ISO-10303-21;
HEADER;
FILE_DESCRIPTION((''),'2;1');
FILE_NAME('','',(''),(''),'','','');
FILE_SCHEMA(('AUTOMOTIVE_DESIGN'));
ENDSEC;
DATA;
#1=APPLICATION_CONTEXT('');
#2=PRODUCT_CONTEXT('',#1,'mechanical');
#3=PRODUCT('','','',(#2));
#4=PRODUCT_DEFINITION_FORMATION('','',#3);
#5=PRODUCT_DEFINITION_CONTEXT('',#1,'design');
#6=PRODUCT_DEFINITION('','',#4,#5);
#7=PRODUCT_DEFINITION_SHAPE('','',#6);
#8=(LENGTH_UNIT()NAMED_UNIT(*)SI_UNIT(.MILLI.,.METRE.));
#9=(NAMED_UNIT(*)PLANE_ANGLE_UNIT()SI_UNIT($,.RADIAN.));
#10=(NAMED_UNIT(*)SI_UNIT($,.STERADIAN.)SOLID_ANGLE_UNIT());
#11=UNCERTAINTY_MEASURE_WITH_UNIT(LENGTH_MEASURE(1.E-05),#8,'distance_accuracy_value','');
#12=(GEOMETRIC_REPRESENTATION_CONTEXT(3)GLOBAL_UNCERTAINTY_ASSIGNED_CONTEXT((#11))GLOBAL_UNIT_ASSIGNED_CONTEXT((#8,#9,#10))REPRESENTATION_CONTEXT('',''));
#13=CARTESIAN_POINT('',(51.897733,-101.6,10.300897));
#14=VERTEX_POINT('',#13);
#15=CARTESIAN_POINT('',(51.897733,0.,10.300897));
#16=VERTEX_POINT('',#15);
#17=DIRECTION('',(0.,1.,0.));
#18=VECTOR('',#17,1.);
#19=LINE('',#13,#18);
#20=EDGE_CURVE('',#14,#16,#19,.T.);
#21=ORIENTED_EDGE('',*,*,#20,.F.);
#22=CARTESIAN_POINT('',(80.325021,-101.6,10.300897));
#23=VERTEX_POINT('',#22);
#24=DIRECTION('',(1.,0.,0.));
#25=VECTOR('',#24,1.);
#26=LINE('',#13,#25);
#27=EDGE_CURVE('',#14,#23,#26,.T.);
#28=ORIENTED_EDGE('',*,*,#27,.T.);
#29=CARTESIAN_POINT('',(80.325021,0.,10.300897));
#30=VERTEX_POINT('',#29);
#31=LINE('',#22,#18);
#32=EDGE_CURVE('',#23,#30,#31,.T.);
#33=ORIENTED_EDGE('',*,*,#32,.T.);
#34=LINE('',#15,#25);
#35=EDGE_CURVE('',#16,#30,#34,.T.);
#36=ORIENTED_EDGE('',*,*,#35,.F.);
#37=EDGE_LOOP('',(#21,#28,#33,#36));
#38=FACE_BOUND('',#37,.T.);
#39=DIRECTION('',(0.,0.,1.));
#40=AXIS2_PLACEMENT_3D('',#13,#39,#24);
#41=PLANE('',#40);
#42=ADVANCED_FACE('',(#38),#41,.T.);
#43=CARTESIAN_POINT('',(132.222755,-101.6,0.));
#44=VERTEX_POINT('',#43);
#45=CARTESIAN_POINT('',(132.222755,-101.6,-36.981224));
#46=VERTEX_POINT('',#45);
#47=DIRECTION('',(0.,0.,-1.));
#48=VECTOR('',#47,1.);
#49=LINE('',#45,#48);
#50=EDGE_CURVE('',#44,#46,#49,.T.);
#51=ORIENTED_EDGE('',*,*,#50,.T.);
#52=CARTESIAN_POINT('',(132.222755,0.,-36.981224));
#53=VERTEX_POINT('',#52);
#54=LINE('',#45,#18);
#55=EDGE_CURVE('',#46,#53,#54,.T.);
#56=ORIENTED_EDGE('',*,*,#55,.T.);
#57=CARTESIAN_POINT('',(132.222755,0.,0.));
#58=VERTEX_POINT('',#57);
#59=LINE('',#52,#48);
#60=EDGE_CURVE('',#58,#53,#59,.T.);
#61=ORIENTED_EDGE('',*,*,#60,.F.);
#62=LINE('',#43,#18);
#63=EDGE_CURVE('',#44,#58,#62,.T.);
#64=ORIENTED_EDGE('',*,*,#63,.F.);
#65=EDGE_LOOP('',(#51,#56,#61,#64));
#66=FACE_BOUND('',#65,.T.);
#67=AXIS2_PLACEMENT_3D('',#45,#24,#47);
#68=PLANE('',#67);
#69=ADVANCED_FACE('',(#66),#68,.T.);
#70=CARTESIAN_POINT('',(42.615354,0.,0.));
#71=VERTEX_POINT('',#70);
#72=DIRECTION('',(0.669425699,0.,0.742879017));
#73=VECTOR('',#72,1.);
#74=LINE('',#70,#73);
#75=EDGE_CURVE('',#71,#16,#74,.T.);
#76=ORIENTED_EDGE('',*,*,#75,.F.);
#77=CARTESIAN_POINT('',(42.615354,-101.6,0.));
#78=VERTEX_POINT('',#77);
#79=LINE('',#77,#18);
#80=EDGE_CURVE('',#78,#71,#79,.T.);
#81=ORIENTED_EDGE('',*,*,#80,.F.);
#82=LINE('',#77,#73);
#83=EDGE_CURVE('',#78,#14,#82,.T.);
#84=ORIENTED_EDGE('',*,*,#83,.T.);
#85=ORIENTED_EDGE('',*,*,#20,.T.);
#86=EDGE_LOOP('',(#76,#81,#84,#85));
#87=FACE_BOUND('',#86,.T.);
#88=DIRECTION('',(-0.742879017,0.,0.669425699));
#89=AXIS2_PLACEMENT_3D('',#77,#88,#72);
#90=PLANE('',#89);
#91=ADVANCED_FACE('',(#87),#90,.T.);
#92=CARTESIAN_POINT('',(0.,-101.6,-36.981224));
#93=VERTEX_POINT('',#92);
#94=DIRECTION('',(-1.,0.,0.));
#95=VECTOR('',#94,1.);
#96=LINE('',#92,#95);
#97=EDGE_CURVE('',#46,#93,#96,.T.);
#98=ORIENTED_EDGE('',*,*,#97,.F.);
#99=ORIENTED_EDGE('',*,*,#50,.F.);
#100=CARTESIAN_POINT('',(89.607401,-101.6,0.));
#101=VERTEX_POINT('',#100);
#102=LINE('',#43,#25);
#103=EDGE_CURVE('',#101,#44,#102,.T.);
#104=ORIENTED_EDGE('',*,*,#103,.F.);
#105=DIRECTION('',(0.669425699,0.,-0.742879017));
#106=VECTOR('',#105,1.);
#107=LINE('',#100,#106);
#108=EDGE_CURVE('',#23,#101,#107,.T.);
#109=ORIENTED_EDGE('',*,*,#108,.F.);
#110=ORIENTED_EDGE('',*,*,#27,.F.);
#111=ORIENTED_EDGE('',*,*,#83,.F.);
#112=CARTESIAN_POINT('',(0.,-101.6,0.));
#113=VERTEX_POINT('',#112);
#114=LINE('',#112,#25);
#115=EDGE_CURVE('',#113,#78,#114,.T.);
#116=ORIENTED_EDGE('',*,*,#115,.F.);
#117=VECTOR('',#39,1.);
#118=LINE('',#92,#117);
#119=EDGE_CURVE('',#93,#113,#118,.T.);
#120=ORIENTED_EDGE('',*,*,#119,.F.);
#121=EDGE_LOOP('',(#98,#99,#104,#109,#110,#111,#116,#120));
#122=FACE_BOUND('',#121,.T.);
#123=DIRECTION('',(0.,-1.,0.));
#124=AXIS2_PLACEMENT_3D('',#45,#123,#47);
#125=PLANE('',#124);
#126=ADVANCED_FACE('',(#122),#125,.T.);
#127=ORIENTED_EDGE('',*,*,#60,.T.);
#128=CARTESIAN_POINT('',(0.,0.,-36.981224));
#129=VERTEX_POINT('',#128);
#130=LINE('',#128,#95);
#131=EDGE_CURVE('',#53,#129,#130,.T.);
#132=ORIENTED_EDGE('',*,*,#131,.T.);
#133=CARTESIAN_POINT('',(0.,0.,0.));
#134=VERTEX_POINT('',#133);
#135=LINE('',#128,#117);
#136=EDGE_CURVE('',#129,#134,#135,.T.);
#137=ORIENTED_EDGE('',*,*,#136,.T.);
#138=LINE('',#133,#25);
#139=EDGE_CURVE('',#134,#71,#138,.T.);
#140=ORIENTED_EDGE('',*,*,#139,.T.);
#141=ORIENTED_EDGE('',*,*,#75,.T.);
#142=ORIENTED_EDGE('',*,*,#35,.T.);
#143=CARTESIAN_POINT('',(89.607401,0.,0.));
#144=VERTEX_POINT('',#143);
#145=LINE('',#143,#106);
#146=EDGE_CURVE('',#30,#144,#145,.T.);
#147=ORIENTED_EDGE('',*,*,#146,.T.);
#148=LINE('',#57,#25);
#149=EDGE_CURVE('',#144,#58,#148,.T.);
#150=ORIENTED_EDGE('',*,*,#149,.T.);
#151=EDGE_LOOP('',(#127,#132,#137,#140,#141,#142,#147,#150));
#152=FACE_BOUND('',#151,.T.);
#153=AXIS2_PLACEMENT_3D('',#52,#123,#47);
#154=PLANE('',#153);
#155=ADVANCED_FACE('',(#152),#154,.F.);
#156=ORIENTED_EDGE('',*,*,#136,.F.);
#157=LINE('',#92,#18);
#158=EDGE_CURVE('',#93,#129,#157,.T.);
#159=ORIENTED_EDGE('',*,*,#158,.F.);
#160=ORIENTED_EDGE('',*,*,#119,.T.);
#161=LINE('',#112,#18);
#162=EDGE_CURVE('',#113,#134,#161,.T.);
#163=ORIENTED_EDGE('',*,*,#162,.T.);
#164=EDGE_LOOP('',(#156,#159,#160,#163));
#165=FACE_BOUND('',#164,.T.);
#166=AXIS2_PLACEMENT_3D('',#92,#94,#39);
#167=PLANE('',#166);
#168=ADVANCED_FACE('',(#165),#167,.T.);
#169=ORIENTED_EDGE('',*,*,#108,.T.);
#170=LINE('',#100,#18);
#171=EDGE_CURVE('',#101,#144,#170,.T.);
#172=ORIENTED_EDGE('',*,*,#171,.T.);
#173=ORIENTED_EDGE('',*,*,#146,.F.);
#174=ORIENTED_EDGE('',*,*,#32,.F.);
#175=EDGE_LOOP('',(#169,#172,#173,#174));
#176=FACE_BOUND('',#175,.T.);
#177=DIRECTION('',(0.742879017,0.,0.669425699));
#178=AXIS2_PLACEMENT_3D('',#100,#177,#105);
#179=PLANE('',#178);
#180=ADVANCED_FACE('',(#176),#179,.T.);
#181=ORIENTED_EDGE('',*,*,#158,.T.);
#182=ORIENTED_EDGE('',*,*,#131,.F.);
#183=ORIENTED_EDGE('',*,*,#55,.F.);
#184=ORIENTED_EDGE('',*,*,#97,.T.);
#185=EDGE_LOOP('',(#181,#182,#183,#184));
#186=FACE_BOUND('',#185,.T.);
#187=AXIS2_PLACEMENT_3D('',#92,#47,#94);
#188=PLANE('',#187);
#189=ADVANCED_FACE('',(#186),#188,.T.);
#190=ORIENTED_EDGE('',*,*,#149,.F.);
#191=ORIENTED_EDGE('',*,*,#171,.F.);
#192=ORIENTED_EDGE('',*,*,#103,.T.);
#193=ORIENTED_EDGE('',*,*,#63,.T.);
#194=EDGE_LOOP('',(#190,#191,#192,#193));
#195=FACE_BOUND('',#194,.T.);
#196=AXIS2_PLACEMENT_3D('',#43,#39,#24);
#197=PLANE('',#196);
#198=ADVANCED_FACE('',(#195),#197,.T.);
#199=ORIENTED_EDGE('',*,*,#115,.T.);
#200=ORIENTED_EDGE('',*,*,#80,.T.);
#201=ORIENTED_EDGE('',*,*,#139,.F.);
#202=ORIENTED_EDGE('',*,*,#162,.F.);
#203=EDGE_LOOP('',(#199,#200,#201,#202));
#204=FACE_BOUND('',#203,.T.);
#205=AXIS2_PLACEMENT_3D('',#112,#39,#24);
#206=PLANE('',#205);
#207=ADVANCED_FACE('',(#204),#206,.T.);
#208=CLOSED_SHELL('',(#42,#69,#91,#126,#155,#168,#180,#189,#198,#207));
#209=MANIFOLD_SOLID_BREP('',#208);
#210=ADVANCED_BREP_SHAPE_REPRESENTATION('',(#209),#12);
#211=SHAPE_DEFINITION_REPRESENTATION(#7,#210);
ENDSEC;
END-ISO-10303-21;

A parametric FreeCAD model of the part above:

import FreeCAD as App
import Part
import Sketcher
Q = App.Units.Quantity

doc = App.newDocument("Part")
body = doc.addObject("PartDesign::Body", "Body")

# Sketch on XZ plane
sketch1 = body.newObject("Sketcher::SketchObject", "Sketch")
sketch1.AttachmentSupport = (doc.getObject("XZ_Plane"), [""])
sketch1.MapMode = "FlatFace"
sketch1.addGeometry([
    Part.LineSegment(App.Vector(0, -37, 0), App.Vector(0, 0, 0)),  # 0
    Part.LineSegment(App.Vector(0, 0, 0), App.Vector(43, 0, 0)),  # 1
    Part.LineSegment(App.Vector(43, 0, 0), App.Vector(52, 10, 0)),  # 2
    Part.LineSegment(App.Vector(52, 10, 0), App.Vector(80, 10, 0)),  # 3
    Part.LineSegment(App.Vector(80, 10, 0), App.Vector(90, 0, 0)),  # 4
    Part.LineSegment(App.Vector(90, 0, 0), App.Vector(132, 0, 0)),  # 5
    Part.LineSegment(App.Vector(132, 0, 0), App.Vector(132, -37, 0)),  # 6
    Part.LineSegment(App.Vector(132, -37, 0), App.Vector(0, -37, 0)),  # 7
], False)
sketch1.addConstraint([
    Sketcher.Constraint("Coincident", 0, 2, 1, 1),
    Sketcher.Constraint("Coincident", 1, 2, 2, 1),
    Sketcher.Constraint("Coincident", 2, 2, 3, 1),
    Sketcher.Constraint("Coincident", 3, 2, 4, 1),
    Sketcher.Constraint("Coincident", 4, 2, 5, 1),
    Sketcher.Constraint("Coincident", 5, 2, 6, 1),
    Sketcher.Constraint("Coincident", 6, 2, 7, 1),
    Sketcher.Constraint("Coincident", 7, 2, 0, 1),
    Sketcher.Constraint("Vertical", 0),
    Sketcher.Constraint("Horizontal", 1),
    Sketcher.Constraint("Horizontal", 3),
    Sketcher.Constraint("Horizontal", 5),
    Sketcher.Constraint("Vertical", 6),
    Sketcher.Constraint("Horizontal", 7),
    Sketcher.Constraint("Coincident", 0, 2, -1, 1),
    Sketcher.Constraint("PointOnObject", 4, 2, -1),
    Sketcher.Constraint("Equal", 1, 5),
    Sketcher.Constraint("Equal", 2, 4),
    Sketcher.Constraint("DistanceX", -1, 1, 4, 2, Q("89.607401 mm")),
    Sketcher.Constraint("DistanceX", 1, 1, 1, 2, Q("42.615354 mm")),
    Sketcher.Constraint("DistanceX", 3, 1, 3, 2, Q("28.427288 mm")),
    Sketcher.Constraint("DistanceY", 0, 1, 0, 2, Q("36.981224 mm")),
    Sketcher.Constraint("DistanceY", 6, 2, 3, 2, Q("47.282121 mm")),
])
pad1 = body.newObject("PartDesign::Pad", "Pad")
pad1.Profile = sketch1
pad1.Length = Q("4 in")

doc.recompute()
